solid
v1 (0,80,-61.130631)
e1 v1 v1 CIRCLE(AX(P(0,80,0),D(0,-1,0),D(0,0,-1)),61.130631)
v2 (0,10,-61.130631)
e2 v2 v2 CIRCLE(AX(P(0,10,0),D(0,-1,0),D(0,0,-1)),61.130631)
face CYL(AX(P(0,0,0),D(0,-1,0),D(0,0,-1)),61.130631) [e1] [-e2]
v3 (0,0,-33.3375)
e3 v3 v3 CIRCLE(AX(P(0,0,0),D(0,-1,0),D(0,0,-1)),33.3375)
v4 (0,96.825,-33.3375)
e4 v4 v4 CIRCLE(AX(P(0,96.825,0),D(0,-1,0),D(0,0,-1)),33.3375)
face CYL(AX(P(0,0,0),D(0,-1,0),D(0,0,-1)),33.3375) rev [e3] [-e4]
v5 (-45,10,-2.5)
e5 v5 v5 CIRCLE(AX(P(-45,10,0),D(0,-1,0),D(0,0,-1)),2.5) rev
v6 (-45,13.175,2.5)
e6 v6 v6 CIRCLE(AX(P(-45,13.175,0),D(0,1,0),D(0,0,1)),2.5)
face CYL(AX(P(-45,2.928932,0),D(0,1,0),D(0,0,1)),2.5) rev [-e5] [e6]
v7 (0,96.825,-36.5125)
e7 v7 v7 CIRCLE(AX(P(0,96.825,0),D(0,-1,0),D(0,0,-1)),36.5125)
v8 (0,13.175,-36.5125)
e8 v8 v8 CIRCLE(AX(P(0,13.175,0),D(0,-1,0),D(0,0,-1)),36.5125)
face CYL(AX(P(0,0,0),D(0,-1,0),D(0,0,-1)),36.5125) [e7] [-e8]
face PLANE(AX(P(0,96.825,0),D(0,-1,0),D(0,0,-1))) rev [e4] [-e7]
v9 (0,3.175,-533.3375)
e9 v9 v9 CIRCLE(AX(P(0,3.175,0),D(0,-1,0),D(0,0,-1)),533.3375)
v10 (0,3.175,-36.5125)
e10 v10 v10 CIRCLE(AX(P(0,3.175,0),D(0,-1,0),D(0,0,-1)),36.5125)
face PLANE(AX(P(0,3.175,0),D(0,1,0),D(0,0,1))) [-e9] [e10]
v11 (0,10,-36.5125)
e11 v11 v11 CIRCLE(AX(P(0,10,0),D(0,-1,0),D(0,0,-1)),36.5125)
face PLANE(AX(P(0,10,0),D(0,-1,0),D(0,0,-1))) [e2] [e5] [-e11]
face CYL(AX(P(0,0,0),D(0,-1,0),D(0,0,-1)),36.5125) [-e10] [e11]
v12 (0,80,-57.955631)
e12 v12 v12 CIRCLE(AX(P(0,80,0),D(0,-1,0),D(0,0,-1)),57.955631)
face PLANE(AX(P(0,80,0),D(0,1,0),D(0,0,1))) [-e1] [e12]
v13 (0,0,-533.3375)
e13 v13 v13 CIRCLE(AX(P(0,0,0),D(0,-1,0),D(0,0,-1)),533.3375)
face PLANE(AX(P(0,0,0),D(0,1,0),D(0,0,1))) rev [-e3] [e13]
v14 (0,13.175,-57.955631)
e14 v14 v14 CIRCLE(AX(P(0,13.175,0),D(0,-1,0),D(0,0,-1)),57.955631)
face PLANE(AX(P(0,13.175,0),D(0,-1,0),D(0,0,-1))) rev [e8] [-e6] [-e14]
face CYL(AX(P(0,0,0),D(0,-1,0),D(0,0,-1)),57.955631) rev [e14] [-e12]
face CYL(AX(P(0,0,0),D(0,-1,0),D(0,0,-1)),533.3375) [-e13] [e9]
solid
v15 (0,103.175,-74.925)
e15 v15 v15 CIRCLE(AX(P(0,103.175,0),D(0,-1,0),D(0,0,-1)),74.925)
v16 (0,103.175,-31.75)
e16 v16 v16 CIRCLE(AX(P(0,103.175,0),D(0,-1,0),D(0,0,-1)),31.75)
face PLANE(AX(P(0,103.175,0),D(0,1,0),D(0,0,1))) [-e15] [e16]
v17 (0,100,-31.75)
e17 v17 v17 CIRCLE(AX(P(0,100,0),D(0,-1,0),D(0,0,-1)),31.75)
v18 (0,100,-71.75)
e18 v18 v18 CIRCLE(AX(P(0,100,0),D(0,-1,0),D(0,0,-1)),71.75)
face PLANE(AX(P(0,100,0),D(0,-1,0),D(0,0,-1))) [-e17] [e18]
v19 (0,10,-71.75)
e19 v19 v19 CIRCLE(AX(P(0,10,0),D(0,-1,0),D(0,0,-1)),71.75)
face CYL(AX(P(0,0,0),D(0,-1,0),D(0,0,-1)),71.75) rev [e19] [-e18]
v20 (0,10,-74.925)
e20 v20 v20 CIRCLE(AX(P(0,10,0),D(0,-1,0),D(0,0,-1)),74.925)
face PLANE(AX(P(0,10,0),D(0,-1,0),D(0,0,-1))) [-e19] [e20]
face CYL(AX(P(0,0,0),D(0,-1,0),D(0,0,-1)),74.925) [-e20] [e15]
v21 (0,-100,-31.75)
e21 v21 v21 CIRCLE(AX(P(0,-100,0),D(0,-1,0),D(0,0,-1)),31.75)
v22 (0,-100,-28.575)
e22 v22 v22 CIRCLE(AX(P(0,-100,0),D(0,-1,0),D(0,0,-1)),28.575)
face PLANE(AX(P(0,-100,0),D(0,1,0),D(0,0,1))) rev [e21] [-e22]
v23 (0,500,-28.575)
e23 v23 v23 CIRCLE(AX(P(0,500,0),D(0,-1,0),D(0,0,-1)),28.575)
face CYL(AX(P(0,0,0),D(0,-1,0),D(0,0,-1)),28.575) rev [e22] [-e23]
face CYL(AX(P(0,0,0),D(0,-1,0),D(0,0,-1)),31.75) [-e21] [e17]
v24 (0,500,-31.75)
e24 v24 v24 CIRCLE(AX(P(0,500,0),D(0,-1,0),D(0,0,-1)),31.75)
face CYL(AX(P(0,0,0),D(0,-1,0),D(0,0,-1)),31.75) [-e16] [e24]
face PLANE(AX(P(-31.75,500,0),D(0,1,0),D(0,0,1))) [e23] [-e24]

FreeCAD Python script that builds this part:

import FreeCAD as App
import Part
import Sketcher

V = App.Vector
Q = App.Units.Quantity

doc = App.newDocument("Part")
body = doc.addObject("PartDesign::Body", "Body")

# Sketch on XY plane
sketch1 = doc.addObject("Sketcher::SketchObject", "Sketch")
body.addObject(sketch1)
sketch1.AttachmentSupport = (doc.XY_Plane, [""])
sketch1.MapMode = "FlatFace"
sketch1.addGeometry(Part.LineSegment(V(-28.6, 500, 0), V(-31.8, 500, 0)), False)
sketch1.addGeometry(Part.LineSegment(V(-31.8, 500, 0), V(-31.8, 103.2, 0)), False)
sketch1.addGeometry(Part.LineSegment(V(-31.8, 103.2, 0), V(-74.9, 103.2, 0)), False)
sketch1.addGeometry(Part.LineSegment(V(-74.9, 103.2, 0), V(-74.9, 10, 0)), False)
sketch1.addGeometry(Part.LineSegment(V(-74.9, 10, 0), V(-71.8, 10, 0)), False)
sketch1.addGeometry(Part.LineSegment(V(-71.8, 10, 0), V(-71.8, 100, 0)), False)
sketch1.addGeometry(Part.LineSegment(V(-71.8, 100, 0), V(-31.8, 100, 0)), False)
sketch1.addGeometry(Part.LineSegment(V(-31.8, 100, 0), V(-31.8, -100, 0)), False)
sketch1.addGeometry(Part.LineSegment(V(-31.8, -100, 0), V(-28.6, -100, 0)), False)
sketch1.addGeometry(Part.LineSegment(V(-28.6, -100, 0), V(-28.6, 500, 0)), False)
sketch1.addConstraint(Sketcher.Constraint("Coincident", 0, 2, 1, 1))
sketch1.addConstraint(Sketcher.Constraint("Coincident", 1, 2, 2, 1))
sketch1.addConstraint(Sketcher.Constraint("Coincident", 2, 2, 3, 1))
sketch1.addConstraint(Sketcher.Constraint("Coincident", 3, 2, 4, 1))
sketch1.addConstraint(Sketcher.Constraint("Coincident", 4, 2, 5, 1))
sketch1.addConstraint(Sketcher.Constraint("Coincident", 5, 2, 6, 1))
sketch1.addConstraint(Sketcher.Constraint("Coincident", 6, 2, 7, 1))
sketch1.addConstraint(Sketcher.Constraint("Coincident", 7, 2, 8, 1))
sketch1.addConstraint(Sketcher.Constraint("Coincident", 8, 2, 9, 1))
sketch1.addConstraint(Sketcher.Constraint("Coincident", 9, 2, 0, 1))
sketch1.addConstraint(Sketcher.Constraint("Horizontal", 0))
sketch1.addConstraint(Sketcher.Constraint("Vertical", 1))
sketch1.addConstraint(Sketcher.Constraint("Horizontal", 2))
sketch1.addConstraint(Sketcher.Constraint("Vertical", 3))
sketch1.addConstraint(Sketcher.Constraint("Horizontal", 4))
sketch1.addConstraint(Sketcher.Constraint("Vertical", 5))
sketch1.addConstraint(Sketcher.Constraint("Horizontal", 6))
sketch1.addConstraint(Sketcher.Constraint("Vertical", 7))
sketch1.addConstraint(Sketcher.Constraint("Horizontal", 8))
sketch1.addConstraint(Sketcher.Constraint("Vertical", 9))
sketch1.addConstraint(Sketcher.Constraint("Vertical", 1, 2, 6, 2))
sketch1.addConstraint(Sketcher.Constraint("Equal", 0, 4))
sketch1.addConstraint(Sketcher.Constraint("DistanceX", 6, 1, 6, 2, Q("40 mm")))
sketch1.addConstraint(Sketcher.Constraint("DistanceY", 5, 1, 5, 2, Q("90 mm")))
sketch1.addConstraint(Sketcher.Constraint("DistanceY", 7, 2, 7, 1, Q("200 mm")))
sketch1.addConstraint(Sketcher.Constraint("DistanceY", 9, 1, 9, 2, Q("600 mm")))
sketch1.addConstraint(Sketcher.Constraint("DistanceY", -1, 1, 0, 2, Q("500 mm")))
sketch1.addConstraint(Sketcher.Constraint("DistanceX", 0, 2, 0, 1, Q("3.175 mm")))
sketch1.addConstraint(Sketcher.Constraint("DistanceY", 1, 2, 1, 1, Q("396.825 mm")))
sketch1.addConstraint(Sketcher.Constraint("DistanceX", 0, 2, -1, 1, Q("31.75 mm")))
revolution = doc.addObject("PartDesign::Revolution", "Revolution")
body.addObject(revolution)
revolution.Profile = sketch1
revolution.ReferenceAxis = (sketch1, ["V_Axis"])
revolution.Angle = 360
body2 = doc.addObject("PartDesign::Body", "Body001")

# Sketch on XY plane
sketch2 = doc.addObject("Sketcher::SketchObject", "Sketch001")
body2.addObject(sketch2)
sketch2.AttachmentSupport = (doc.getObject("XY_Plane001"), [""])
sketch2.MapMode = "FlatFace"
sketch2.addGeometry(Part.LineSegment(V(-533.3, 3.2, 0), V(-533.3, 0, 0)), False)
sketch2.addGeometry(Part.LineSegment(V(-533.3, 0, 0), V(-33.3, 0, 0)), False)
sketch2.addGeometry(Part.LineSegment(V(-33.3, 0, 0), V(-33.3, 96.8, 0)), False)
sketch2.addGeometry(Part.LineSegment(V(-33.3, 96.8, 0), V(-36.5, 96.8, 0)), False)
sketch2.addGeometry(Part.LineSegment(V(-36.5, 96.8, 0), V(-36.5, 13.2, 0)), False)
sketch2.addGeometry(Part.LineSegment(V(-36.5, 13.2, 0), V(-58, 13.2, 0)), False)
sketch2.addGeometry(Part.LineSegment(V(-58, 13.2, 0), V(-58, 80, 0)), False)
sketch2.addGeometry(Part.LineSegment(V(-58, 80, 0), V(-61.1, 80, 0)), False)
sketch2.addGeometry(Part.LineSegment(V(-61.1, 80, 0), V(-61.1, 10, 0)), False)
sketch2.addGeometry(Part.LineSegment(V(-61.1, 10, 0), V(-36.5, 10, 0)), False)
sketch2.addGeometry(Part.LineSegment(V(-36.5, 10, 0), V(-36.5, 3.2, 0)), False)
sketch2.addGeometry(Part.LineSegment(V(-36.5, 3.2, 0), V(-533.3, 3.2, 0)), False)
sketch2.addConstraint(Sketcher.Constraint("Coincident", 0, 2, 1, 1))
sketch2.addConstraint(Sketcher.Constraint("Coincident", 1, 2, 2, 1))
sketch2.addConstraint(Sketcher.Constraint("Coincident", 2, 2, 3, 1))
sketch2.addConstraint(Sketcher.Constraint("Coincident", 3, 2, 4, 1))
sketch2.addConstraint(Sketcher.Constraint("Coincident", 4, 2, 5, 1))
sketch2.addConstraint(Sketcher.Constraint("Coincident", 5, 2, 6, 1))
sketch2.addConstraint(Sketcher.Constraint("Coincident", 6, 2, 7, 1))
sketch2.addConstraint(Sketcher.Constraint("Coincident", 7, 2, 8, 1))
sketch2.addConstraint(Sketcher.Constraint("Coincident", 8, 2, 9, 1))
sketch2.addConstraint(Sketcher.Constraint("Coincident", 9, 2, 10, 1))
sketch2.addConstraint(Sketcher.Constraint("Coincident", 10, 2, 11, 1))
sketch2.addConstraint(Sketcher.Constraint("Coincident", 11, 2, 0, 1))
sketch2.addConstraint(Sketcher.Constraint("Vertical", 0))
sketch2.addConstraint(Sketcher.Constraint("Horizontal", 1))
sketch2.addConstraint(Sketcher.Constraint("Vertical", 2))
sketch2.addConstraint(Sketcher.Constraint("Horizontal", 3))
sketch2.addConstraint(Sketcher.Constraint("Vertical", 4))
sketch2.addConstraint(Sketcher.Constraint("Horizontal", 5))
sketch2.addConstraint(Sketcher.Constraint("Vertical", 6))
sketch2.addConstraint(Sketcher.Constraint("Horizontal", 7))
sketch2.addConstraint(Sketcher.Constraint("Vertical", 8))
sketch2.addConstraint(Sketcher.Constraint("Horizontal", 9))
sketch2.addConstraint(Sketcher.Constraint("Vertical", 10))
sketch2.addConstraint(Sketcher.Constraint("Horizontal", 11))
sketch2.addConstraint(Sketcher.Constraint("PointOnObject", 0, 2, -1))
sketch2.addConstraint(Sketcher.Constraint("Vertical", 4, 2, 9, 2))
sketch2.addConstraint(Sketcher.Constraint("Equal", 3, 7))
sketch2.addConstraint(Sketcher.Constraint("Equal", 7, 0))
sketch2.addConstraint(Sketcher.Constraint("DistanceX", 1, 1, 1, 2, Q("500 mm")))
sketch2.addConstraint(Sketcher.Constraint("DistanceY", 8, 2, 8, 1, Q("70 mm")))
sketch2.addConstraint(Sketcher.Constraint("DistanceY", -1, 1, 6, 2, Q("80 mm")))
sketch2.addConstraint(Sketcher.Constraint("DistanceY", 10, 2, 4, 2, Q("10 mm")))
sketch2.addConstraint(Sketcher.Constraint("DistanceY", 4, 2, 4, 1, Q("83.65 mm")))
sketch2.addConstraint(Sketcher.Constraint("DistanceX", 3, 2, 3, 1, Q("3.175 mm")))
sketch2.addConstraint(Sketcher.Constraint("DistanceX", 5, 2, 5, 1, Q("21.443131 mm")))
sketch2.addConstraint(Sketcher.Constraint("DistanceX", 0, 2, -1, 1, Q("533.3375 mm")))
revolution2 = doc.addObject("PartDesign::Revolution", "Revolution001")
body2.addObject(revolution2)
revolution2.Profile = sketch2
revolution2.ReferenceAxis = (sketch2, ["V_Axis"])
revolution2.Angle = 360

# Sketch on XZ plane
sketch3 = doc.addObject("Sketcher::SketchObject", "Sketch002")
body2.addObject(sketch3)
sketch3.AttachmentSupport = (doc.getObject("XZ_Plane001"), [""])
sketch3.MapMode = "FlatFace"
sketch3.AttachmentOffset = App.Placement(V(0, 0, -13.175), App.Rotation())
sketch3.addGeometry(Part.Circle(V(-45, 0, 0), V(0, 0, 1), 2.5), False)
sketch3.addConstraint(Sketcher.Constraint("PointOnObject", 0, 3, -1))
sketch3.addConstraint(Sketcher.Constraint("Diameter", 0, Q("5 mm")))
sketch3.addConstraint(Sketcher.Constraint("DistanceX", 0, 3, -1, 1, Q("45 mm")))
pocket1 = doc.addObject("PartDesign::Pocket", "Pocket")
body2.addObject(pocket1)
pocket1.Profile = sketch3
pocket1.Length = 3.175
pocket1.Reversed = True

doc.recompute()
